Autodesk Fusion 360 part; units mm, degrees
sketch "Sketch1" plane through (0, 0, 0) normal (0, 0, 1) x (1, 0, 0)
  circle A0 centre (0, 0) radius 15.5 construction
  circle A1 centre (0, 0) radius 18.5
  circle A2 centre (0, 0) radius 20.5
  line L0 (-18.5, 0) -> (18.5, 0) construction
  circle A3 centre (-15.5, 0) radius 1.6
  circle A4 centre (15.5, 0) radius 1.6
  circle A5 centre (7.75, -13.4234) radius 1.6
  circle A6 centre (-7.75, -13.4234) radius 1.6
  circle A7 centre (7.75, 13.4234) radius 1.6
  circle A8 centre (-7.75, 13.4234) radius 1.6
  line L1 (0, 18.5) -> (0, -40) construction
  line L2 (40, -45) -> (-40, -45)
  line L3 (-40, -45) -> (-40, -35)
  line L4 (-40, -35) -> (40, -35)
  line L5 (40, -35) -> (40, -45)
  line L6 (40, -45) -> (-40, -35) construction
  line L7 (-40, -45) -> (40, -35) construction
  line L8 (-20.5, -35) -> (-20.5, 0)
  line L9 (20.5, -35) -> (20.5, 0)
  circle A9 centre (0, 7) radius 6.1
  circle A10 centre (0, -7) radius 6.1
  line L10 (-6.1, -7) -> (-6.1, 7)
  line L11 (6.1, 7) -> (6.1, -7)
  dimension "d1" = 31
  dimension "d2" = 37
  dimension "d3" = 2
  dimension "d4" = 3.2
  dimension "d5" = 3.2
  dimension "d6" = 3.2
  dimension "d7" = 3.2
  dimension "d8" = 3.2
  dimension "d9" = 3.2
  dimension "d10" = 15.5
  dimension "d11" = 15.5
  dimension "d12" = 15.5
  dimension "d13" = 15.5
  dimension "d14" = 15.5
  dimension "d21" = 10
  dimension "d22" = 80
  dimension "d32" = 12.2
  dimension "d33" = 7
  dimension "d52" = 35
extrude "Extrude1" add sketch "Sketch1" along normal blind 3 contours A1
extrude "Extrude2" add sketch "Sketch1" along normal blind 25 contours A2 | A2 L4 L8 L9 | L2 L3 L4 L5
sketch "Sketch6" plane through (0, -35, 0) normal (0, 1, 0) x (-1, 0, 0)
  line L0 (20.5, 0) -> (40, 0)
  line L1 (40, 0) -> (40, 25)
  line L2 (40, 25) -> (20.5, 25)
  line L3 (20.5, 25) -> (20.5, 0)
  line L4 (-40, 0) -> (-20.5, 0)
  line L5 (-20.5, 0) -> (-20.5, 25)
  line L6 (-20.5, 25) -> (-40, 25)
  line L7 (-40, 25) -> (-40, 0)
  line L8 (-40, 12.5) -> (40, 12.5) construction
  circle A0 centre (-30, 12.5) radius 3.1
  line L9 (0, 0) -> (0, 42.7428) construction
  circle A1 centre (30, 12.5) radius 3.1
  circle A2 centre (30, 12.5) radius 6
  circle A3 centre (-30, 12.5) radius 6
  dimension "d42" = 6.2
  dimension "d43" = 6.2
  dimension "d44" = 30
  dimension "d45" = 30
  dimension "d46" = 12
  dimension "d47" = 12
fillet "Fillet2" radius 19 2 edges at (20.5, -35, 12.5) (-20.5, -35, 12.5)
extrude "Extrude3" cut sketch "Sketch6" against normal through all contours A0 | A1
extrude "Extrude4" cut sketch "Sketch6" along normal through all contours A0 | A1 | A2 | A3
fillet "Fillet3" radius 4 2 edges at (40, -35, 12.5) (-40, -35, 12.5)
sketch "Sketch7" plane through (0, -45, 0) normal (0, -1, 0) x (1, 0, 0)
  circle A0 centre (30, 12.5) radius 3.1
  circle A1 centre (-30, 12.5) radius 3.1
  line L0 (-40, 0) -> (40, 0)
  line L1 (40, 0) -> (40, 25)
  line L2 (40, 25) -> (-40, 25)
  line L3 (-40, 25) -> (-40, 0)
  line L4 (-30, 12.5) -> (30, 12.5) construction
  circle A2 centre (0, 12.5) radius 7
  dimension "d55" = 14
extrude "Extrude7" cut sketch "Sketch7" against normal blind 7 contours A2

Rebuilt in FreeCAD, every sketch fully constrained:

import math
import FreeCAD as App
import Part
import Sketcher
from FreeCAD import Vector
Q = App.Units.Quantity


def edges_at(feature, points):
    """Names of the edges that pass closest to the given points."""
    edges = feature.Shape.Edges
    near = lambda p: min(range(len(edges)), key=lambda i: edges[i].distToShape(Part.Vertex(*p))[0])
    return sorted({f"Edge{near(p) + 1}" for p in points})

doc = App.newDocument("Part")
body = doc.addObject("PartDesign::Body", "Body")

sketch1 = body.newObject("Sketcher::SketchObject", "Sketch")
sketch1.AttachmentSupport = (doc.getObject("XY_Plane"), [""])
sketch1.MapMode = "FlatFace"
sketch1.addGeometry([
    Part.Circle(Vector(0, 0, 0), Vector(0, 0, 1), 18.5),
    Part.Circle(Vector(-7.75, -13.4234, 0), Vector(0, 0, 1), 1.6),
    Part.Circle(Vector(7.75, -13.4234, 0), Vector(0, 0, 1), 1.6),
    Part.Circle(Vector(-15.5, 0, 0), Vector(0, 0, 1), 1.6),
    Part.Circle(Vector(-7.75, 13.4234, 0), Vector(0, 0, 1), 1.6),
    Part.ArcOfCircle(Part.Circle(Vector(0, 7, 0), Vector(0, 0, 1), 6.1), math.radians(0), math.radians(180)),
    Part.LineSegment(Vector(6.1, 7, 0), Vector(6.1, -7, 0)),
    Part.ArcOfCircle(Part.Circle(Vector(0, -7, 0), Vector(0, 0, 1), 6.1), math.radians(180), math.radians(360)),
    Part.LineSegment(Vector(-6.1, -7, 0), Vector(-6.1, 7, 0)),
    Part.Circle(Vector(15.5, 0, 0), Vector(0, 0, 1), 1.6),
    Part.Circle(Vector(7.75, 13.4234, 0), Vector(0, 0, 1), 1.6),
], False)
sketch1.addConstraint([
    Sketcher.Constraint("Tangent", 5, 1, 6, 1),
    Sketcher.Constraint("Tangent", 6, 2, 7, 2),
    Sketcher.Constraint("Tangent", 7, 1, 8, 1),
    Sketcher.Constraint("Tangent", 8, 2, 5, 2),
    Sketcher.Constraint("Vertical", 6),
    Sketcher.Constraint("Vertical", 8),
    Sketcher.Constraint("Coincident", 0, 3, -1, 1),
    Sketcher.Constraint("Equal", 1, 2),
    Sketcher.Constraint("Equal", 2, 3),
    Sketcher.Constraint("Equal", 3, 4),
    Sketcher.Constraint("Equal", 4, 9),
    Sketcher.Constraint("Equal", 9, 10),
    Sketcher.Constraint("Symmetric", 2, 3, 4, 3, -1, 1),
    Sketcher.Constraint("Symmetric", 5, 3, 7, 3, -1, 1),
    Sketcher.Constraint("Symmetric", 3, 3, 9, 3, -1, 1),
    Sketcher.Constraint("Symmetric", 1, 3, 10, 3, -1, 1),
    Sketcher.Constraint("Symmetric", 1, 3, 2, 3, -2),
    Sketcher.Constraint("PointOnObject", 3, 3, -1),
    Sketcher.Constraint("Diameter", 0, Q("37 mm")),
    Sketcher.Constraint("Diameter", 1, Q("3.2 mm")),
    Sketcher.Constraint("Radius", 5, Q("6.1 mm")),
    Sketcher.Constraint("DistanceY", -1, 1, 5, 3, Q("7 mm")),
    Sketcher.Constraint("DistanceX", 3, 3, -1, 1, Q("15.5 mm")),
    Sketcher.Constraint("DistanceX", 1, 3, 2, 3, Q("15.5 mm")),
    Sketcher.Constraint("DistanceY", 1, 3, -1, 1, Q("13.4234 mm")),
])
pad1 = body.newObject("PartDesign::Pad", "Pad")
pad1.Profile = sketch1
pad1.Length = 3

sketch2 = body.newObject("Sketcher::SketchObject", "Sketch001")
sketch2.AttachmentSupport = (doc.getObject("XY_Plane"), [""])
sketch2.MapMode = "FlatFace"
sketch2.addGeometry([
    Part.ArcOfCircle(Part.Circle(Vector(0, 0, 0), Vector(0, 0, 1), 20.5), math.radians(0), math.radians(180)),
    Part.LineSegment(Vector(-20.5, 0, 0), Vector(-20.5, -35, 0)),
    Part.LineSegment(Vector(-20.5, -35, 0), Vector(-40, -35, 0)),
    Part.LineSegment(Vector(-40, -35, 0), Vector(-40, -45, 0)),
    Part.LineSegment(Vector(-40, -45, 0), Vector(40, -45, 0)),
    Part.LineSegment(Vector(40, -45, 0), Vector(40, -35, 0)),
    Part.LineSegment(Vector(40, -35, 0), Vector(20.5, -35, 0)),
    Part.LineSegment(Vector(20.5, -35, 0), Vector(20.5, 0, 0)),
    Part.Circle(Vector(0, 0, 0), Vector(0, 0, 1), 18.5),
], False)
sketch2.addConstraint([
    Sketcher.Constraint("Tangent", 0, 2, 1, 1),
    Sketcher.Constraint("Coincident", 1, 2, 2, 1),
    Sketcher.Constraint("Coincident", 2, 2, 3, 1),
    Sketcher.Constraint("Coincident", 3, 2, 4, 1),
    Sketcher.Constraint("Coincident", 4, 2, 5, 1),
    Sketcher.Constraint("Coincident", 5, 2, 6, 1),
    Sketcher.Constraint("Coincident", 6, 2, 7, 1),
    Sketcher.Constraint("Tangent", 7, 2, 0, 1),
    Sketcher.Constraint("Vertical", 1),
    Sketcher.Constraint("Horizontal", 2),
    Sketcher.Constraint("Vertical", 3),
    Sketcher.Constraint("Horizontal", 4),
    Sketcher.Constraint("Vertical", 5),
    Sketcher.Constraint("Horizontal", 6),
    Sketcher.Constraint("Vertical", 7),
    Sketcher.Constraint("Coincident", 0, 3, -1, 1),
    Sketcher.Constraint("Coincident", 8, 3, -1, 1),
    Sketcher.Constraint("Symmetric", 2, 2, 5, 2, -2),
    Sketcher.Constraint("Diameter", 8, Q("37 mm")),
    Sketcher.Constraint("DistanceX", 4, 1, 4, 2, Q("80 mm")),
    Sketcher.Constraint("DistanceY", 1, 2, 1, 1, Q("35 mm")),
    Sketcher.Constraint("DistanceY", 3, 2, 3, 1, Q("10 mm")),
    Sketcher.Constraint("Radius", 0, Q("20.5 mm")),
])
pad2 = body.newObject("PartDesign::Pad", "Pad001")
pad2.Profile = sketch2
pad2.Length = 25
doc.recompute()

fillet = body.newObject("PartDesign::Fillet", "Fillet")
fillet.Base = (pad2, edges_at(pad2, [(20.5, -35, 12.5), (-20.5, -35, 12.5)]))
fillet.Radius = 19

sketch3 = body.newObject("Sketcher::SketchObject", "Sketch002")
sketch3.AttachmentSupport = (doc.getObject("XZ_Plane"), [""])
sketch3.MapMode = "FlatFace"
sketch3.AttachmentOffset = App.Placement(Vector(0, 0, 35), App.Rotation())
sketch3.addGeometry([
    Part.Circle(Vector(30, 12.5, 0), Vector(0, 0, 1), 3.1),
    Part.Circle(Vector(-30, 12.5, 0), Vector(0, 0, 1), 3.1),
], False)
sketch3.addConstraint([
    Sketcher.Constraint("Equal", 0, 1),
    Sketcher.Constraint("Symmetric", 0, 3, 1, 3, -2),
    Sketcher.Constraint("Diameter", 0, Q("6.2 mm")),
    Sketcher.Constraint("DistanceX", -1, 1, 0, 3, Q("30 mm")),
    Sketcher.Constraint("DistanceY", -1, 1, 0, 3, Q("12.5 mm")),
])
pocket1 = body.newObject("PartDesign::Pocket", "Pocket")
pocket1.Profile = sketch3
pocket1.Type = "ThroughAll"
pocket1.Reversed = True

sketch4 = body.newObject("Sketcher::SketchObject", "Sketch003")
sketch4.AttachmentSupport = (doc.getObject("XZ_Plane"), [""])
sketch4.MapMode = "FlatFace"
sketch4.AttachmentOffset = App.Placement(Vector(0, 0, 35), App.Rotation())
sketch4.addGeometry([
    Part.Circle(Vector(30, 12.5, 0), Vector(0, 0, 1), 6),
    Part.Circle(Vector(-30, 12.5, 0), Vector(0, 0, 1), 6),
], False)
sketch4.addConstraint([
    Sketcher.Constraint("Equal", 0, 1),
    Sketcher.Constraint("Symmetric", 0, 3, 1, 3, -2),
    Sketcher.Constraint("Diameter", 0, Q("12 mm")),
    Sketcher.Constraint("DistanceX", -1, 1, 0, 3, Q("30 mm")),
    Sketcher.Constraint("DistanceY", -1, 1, 0, 3, Q("12.5 mm")),
])
pocket2 = body.newObject("PartDesign::Pocket", "Pocket001")
pocket2.Profile = sketch4
pocket2.Type = "ThroughAll"
doc.recompute()

fillet2 = body.newObject("PartDesign::Fillet", "Fillet001")
fillet2.Base = (pocket2, edges_at(pocket2, [(40, -35, 12.5), (-40, -35, 12.5)]))
fillet2.Radius = 4

sketch5 = body.newObject("Sketcher::SketchObject", "Sketch004")
sketch5.AttachmentSupport = (doc.getObject("XZ_Plane"), [""])
sketch5.MapMode = "FlatFace"
sketch5.AttachmentOffset = App.Placement(Vector(0, 0, 45), App.Rotation())
sketch5.addGeometry(Part.Circle(Vector(0, 12.5, 0), Vector(0, 0, 1), 7), False)
sketch5.addConstraint([
    Sketcher.Constraint("PointOnObject", 0, 3, -2),
    Sketcher.Constraint("Diameter", 0, Q("14 mm")),
    Sketcher.Constraint("DistanceY", -1, 1, 0, 3, Q("12.5 mm")),
])
pocket3 = body.newObject("PartDesign::Pocket", "Pocket002")
pocket3.Profile = sketch5
pocket3.Length = 7

doc.recompute()
